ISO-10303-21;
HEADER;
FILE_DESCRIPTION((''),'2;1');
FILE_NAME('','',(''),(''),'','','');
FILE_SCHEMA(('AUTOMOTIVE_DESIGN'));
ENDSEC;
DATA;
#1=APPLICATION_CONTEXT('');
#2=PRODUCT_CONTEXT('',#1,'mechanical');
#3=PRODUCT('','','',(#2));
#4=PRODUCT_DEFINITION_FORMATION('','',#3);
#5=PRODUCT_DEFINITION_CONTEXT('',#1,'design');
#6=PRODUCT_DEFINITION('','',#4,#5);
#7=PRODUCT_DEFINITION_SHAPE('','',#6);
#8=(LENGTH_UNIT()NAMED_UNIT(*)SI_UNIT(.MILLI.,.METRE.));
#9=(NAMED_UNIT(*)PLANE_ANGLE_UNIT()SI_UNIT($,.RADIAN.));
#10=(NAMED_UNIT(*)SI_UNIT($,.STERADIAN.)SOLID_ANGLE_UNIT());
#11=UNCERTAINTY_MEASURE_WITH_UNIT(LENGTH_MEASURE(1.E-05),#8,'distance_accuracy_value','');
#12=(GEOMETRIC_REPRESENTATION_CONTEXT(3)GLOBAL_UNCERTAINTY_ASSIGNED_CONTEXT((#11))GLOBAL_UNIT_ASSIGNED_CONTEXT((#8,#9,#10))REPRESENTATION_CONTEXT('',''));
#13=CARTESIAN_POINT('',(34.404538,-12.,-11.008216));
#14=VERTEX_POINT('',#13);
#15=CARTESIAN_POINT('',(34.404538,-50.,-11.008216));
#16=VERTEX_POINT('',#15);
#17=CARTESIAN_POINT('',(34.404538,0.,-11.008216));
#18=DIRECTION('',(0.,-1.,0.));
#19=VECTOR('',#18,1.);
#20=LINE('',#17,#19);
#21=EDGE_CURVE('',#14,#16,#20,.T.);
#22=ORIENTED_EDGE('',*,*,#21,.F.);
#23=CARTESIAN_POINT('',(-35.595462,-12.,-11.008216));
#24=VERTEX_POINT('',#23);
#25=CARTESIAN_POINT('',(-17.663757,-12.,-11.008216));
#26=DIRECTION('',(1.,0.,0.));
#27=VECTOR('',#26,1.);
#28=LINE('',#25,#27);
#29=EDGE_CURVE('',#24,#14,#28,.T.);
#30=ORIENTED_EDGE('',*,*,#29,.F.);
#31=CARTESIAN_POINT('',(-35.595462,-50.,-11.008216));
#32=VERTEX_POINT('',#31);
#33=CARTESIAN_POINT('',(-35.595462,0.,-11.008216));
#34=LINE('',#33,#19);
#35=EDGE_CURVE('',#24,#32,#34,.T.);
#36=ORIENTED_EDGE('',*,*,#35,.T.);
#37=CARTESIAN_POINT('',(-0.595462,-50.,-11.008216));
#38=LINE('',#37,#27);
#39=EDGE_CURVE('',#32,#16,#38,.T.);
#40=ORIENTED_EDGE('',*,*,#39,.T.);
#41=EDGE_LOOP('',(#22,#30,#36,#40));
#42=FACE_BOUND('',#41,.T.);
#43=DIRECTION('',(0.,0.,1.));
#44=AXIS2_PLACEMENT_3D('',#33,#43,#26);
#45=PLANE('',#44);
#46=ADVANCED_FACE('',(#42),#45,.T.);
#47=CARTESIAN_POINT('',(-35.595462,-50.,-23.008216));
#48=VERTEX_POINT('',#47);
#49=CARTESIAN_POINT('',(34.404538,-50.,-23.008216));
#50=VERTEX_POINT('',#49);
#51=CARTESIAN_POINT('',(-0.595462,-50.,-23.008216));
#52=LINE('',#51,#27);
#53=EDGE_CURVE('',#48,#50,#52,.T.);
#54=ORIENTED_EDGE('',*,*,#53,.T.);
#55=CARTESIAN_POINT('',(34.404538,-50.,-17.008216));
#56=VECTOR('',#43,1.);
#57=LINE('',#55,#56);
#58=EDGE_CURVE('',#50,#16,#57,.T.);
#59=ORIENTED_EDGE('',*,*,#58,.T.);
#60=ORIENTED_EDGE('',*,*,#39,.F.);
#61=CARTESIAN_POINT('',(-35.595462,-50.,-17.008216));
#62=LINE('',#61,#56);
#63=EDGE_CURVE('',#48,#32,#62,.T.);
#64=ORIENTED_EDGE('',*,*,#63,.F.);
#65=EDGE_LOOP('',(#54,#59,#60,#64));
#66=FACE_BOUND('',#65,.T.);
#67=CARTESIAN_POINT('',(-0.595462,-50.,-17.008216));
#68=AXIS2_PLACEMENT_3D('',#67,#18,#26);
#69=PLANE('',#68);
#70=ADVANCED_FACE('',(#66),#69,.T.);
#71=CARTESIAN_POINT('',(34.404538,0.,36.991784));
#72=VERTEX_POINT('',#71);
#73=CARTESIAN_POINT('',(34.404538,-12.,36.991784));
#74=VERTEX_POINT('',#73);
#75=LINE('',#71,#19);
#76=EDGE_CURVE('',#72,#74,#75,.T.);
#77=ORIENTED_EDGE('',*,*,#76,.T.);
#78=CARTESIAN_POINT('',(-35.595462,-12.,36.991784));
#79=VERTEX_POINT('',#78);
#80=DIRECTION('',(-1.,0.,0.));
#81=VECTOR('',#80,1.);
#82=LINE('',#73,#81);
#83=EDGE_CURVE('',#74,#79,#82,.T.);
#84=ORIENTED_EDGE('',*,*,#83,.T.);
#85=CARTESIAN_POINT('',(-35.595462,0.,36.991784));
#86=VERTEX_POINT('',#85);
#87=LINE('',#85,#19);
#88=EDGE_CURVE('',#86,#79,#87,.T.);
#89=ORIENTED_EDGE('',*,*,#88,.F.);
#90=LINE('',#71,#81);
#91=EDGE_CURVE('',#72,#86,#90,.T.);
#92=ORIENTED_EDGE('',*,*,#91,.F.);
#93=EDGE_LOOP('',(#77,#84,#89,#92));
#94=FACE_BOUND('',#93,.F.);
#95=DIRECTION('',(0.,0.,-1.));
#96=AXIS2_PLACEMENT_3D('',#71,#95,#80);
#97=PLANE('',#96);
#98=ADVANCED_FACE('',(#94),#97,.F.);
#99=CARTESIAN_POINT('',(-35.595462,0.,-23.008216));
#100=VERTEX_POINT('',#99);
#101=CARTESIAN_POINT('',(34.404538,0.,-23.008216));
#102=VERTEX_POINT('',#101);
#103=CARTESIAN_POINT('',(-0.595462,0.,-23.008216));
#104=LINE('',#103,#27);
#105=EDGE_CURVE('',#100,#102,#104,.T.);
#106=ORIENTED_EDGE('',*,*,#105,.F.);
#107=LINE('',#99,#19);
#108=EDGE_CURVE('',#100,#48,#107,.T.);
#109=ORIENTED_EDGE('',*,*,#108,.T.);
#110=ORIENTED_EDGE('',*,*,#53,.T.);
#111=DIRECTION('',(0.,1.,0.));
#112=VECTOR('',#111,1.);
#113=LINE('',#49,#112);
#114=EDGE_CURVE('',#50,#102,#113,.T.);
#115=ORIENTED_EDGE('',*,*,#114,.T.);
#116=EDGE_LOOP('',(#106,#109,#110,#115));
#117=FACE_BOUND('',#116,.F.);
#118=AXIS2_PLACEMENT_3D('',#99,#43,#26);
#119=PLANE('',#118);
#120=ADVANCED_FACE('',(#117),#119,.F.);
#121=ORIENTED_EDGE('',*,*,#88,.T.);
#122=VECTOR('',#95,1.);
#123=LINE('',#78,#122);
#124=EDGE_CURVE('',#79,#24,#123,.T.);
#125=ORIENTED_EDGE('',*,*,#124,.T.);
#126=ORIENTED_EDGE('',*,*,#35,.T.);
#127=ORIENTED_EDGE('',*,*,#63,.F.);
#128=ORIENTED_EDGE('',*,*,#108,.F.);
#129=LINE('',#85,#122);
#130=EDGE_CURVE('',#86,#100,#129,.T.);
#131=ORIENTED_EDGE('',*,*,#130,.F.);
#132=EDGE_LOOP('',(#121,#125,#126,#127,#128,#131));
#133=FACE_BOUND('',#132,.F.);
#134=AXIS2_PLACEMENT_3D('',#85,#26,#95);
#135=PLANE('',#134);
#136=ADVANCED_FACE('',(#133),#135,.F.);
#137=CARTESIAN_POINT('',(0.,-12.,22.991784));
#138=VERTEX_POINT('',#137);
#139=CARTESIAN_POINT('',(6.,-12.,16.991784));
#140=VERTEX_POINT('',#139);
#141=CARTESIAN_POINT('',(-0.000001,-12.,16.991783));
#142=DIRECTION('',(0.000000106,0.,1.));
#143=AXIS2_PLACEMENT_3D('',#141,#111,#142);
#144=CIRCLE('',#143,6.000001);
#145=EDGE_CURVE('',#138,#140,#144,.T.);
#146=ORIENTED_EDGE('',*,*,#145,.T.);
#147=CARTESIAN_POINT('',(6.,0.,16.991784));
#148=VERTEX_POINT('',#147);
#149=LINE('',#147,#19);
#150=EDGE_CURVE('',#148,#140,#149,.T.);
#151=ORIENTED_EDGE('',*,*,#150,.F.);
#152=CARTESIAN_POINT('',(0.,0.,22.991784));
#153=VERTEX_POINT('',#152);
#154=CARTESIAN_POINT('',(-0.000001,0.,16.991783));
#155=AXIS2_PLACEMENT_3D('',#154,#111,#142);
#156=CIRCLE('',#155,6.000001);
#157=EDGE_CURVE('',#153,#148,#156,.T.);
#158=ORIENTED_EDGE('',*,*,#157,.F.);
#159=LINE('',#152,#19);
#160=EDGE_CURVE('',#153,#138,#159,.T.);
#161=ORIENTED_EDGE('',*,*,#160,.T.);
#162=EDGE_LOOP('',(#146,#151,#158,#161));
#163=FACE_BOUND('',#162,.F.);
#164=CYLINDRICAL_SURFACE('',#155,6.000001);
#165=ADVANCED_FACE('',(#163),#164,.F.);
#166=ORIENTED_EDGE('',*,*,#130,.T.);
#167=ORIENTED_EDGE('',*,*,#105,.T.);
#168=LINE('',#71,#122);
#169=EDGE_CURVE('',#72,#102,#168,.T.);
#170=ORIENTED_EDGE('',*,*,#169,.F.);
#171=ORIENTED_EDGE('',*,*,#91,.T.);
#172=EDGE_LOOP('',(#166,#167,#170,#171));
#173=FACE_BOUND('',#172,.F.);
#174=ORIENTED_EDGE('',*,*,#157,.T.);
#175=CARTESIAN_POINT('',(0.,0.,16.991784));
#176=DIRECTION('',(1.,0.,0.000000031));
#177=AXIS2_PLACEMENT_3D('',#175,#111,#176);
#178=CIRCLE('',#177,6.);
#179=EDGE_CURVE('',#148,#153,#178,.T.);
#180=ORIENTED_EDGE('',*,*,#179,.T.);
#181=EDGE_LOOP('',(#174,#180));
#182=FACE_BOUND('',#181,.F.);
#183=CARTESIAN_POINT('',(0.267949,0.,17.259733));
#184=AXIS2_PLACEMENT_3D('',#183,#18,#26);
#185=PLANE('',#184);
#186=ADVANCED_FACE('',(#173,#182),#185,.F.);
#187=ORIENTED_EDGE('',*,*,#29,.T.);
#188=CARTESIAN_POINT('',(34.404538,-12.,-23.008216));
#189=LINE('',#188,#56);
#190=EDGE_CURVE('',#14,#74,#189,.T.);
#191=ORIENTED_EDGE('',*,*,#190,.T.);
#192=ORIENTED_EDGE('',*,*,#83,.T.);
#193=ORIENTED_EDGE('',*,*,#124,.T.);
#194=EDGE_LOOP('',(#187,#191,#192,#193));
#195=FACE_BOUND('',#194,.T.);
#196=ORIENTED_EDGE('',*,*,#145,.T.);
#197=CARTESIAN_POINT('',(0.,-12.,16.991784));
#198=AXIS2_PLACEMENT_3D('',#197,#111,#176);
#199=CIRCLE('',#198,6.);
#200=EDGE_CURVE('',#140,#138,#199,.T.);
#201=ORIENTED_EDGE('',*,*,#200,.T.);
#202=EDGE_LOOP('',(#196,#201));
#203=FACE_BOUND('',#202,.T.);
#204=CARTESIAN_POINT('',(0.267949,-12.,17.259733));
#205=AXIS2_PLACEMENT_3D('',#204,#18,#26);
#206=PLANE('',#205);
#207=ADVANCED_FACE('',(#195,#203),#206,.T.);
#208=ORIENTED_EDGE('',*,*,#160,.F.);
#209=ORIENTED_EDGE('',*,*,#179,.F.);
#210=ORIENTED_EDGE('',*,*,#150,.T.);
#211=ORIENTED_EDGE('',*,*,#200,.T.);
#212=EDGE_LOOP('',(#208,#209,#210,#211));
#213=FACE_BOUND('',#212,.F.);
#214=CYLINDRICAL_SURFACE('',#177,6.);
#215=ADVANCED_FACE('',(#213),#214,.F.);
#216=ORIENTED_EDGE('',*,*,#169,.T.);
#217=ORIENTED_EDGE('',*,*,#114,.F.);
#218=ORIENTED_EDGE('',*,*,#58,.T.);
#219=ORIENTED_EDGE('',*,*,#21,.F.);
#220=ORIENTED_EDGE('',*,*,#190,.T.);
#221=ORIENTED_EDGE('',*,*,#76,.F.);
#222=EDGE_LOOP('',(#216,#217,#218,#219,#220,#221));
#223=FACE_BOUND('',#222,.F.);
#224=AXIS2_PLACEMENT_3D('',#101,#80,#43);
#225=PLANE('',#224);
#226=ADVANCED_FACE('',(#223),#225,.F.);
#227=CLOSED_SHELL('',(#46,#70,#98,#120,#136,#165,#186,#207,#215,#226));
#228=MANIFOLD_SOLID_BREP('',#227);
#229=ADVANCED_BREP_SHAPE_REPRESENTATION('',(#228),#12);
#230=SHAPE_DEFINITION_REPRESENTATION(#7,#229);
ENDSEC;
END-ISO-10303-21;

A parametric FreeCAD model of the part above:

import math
import FreeCAD as App
import Part
import Sketcher
from FreeCAD import Vector
Q = App.Units.Quantity


def add_polygon(sketch, points):
    """Adds a closed chain of lines whose ends are joined by coincident constraints."""
    first, n = sketch.GeometryCount, len(points)
    for a, b in zip(points, points[1:] + points[:1]):
        sketch.addGeometry(Part.LineSegment(App.Vector(*a, 0), App.Vector(*b, 0)), False)
    for i in range(n):
        sketch.addConstraint(Sketcher.Constraint("Coincident", first + i, 2, first + (i + 1) % n, 1))

doc = App.newDocument("Part")
params = doc.addObject("Spreadsheet::Sheet", "Params")
for row, (alias, value) in enumerate([
    ("sketch1_width", "70 mm"),
    ("sketch1_height", "12 mm"),
    ("pad1_length", "50 mm"),
    ("sketch2_radius", "6.000001 mm"),
    ("sketch2_width", "70 mm"),
    ("sketch2_height", "60 mm"),
    ("pad2_length", "12 mm"),
], start=1):
    params.set(f"A{row}", alias)
    params.set(f"B{row}", "=" + value)
    params.setAlias(f"B{row}", alias)

body = doc.addObject("PartDesign::Body", "Body")

sketch1 = doc.addObject("Sketcher::SketchObject", "Sketch")
body.addObject(sketch1)
sketch1.AttachmentSupport = (doc.XZ_Plane, [""])
sketch1.MapMode = "FlatFace"
add_polygon(sketch1, [(-35.595462, -11.008216), (-35.595462, -23.008216), (34.404538, -23.008216), (34.404538, -11.008216)])
sketch1.addConstraint([
    Sketcher.Constraint("Vertical", 0),
    Sketcher.Constraint("Horizontal", 1),
    Sketcher.Constraint("Vertical", 2),
    Sketcher.Constraint("Horizontal", 3),
    Sketcher.Constraint("DistanceX", 1, 1, 1, 2, Q("70 mm")),
    Sketcher.Constraint("DistanceY", 0, 2, 0, 1, Q("12 mm")),
    Sketcher.Constraint("DistanceX", 0, 2, -1, 1, Q("35.595462 mm")),
    Sketcher.Constraint("DistanceY", 0, 2, -1, 1, Q("23.008216 mm")),
])
sketch1.setExpression("Constraints[8]", "Params.sketch1_width")
sketch1.setExpression("Constraints[9]", "Params.sketch1_height")
pad1 = doc.addObject("PartDesign::Pad", "Pad")
body.addObject(pad1)
pad1.Profile = sketch1
pad1.setExpression("Length", "Params.pad1_length")

sketch2 = doc.addObject("Sketcher::SketchObject", "Sketch001")
body.addObject(sketch2)
sketch2.AttachmentSupport = (doc.XZ_Plane, [""])
sketch2.MapMode = "FlatFace"
add_polygon(sketch2, [(-35.595462, 36.991784), (-35.595462, -23.008216), (34.404538, -23.008216), (34.404538, 36.991784)])
sketch2.addGeometry(Part.ArcOfCircle(Part.Circle(Vector(-0.000001, 16.991783, 0), Vector(0, 0, 1), 6.000001), math.radians(0.000006), math.radians(89.999994)), False)
sketch2.addGeometry(Part.ArcOfCircle(Part.Circle(Vector(0, 16.991784, 0), Vector(0, 0, 1), 6), math.radians(89.999998), math.radians(360.000002)), False)
sketch2.addConstraint([
    Sketcher.Constraint("Tangent", 4, 1, 5, 2),
    Sketcher.Constraint("Coincident", 5, 1, 4, 2),
    Sketcher.Constraint("Vertical", 0),
    Sketcher.Constraint("Horizontal", 1),
    Sketcher.Constraint("Vertical", 2),
    Sketcher.Constraint("Horizontal", 3),
    Sketcher.Constraint("PointOnObject", 4, 3, -2),
    Sketcher.Constraint("PointOnObject", 5, 1, -2),
    Sketcher.Constraint("Horizontal", 5, 3, 4, 1),
    Sketcher.Constraint("Radius", 4, Q("6.000001 mm")),
    Sketcher.Constraint("DistanceX", 1, 1, 1, 2, Q("70 mm")),
    Sketcher.Constraint("DistanceY", 0, 2, 0, 1, Q("60 mm")),
    Sketcher.Constraint("DistanceY", 0, 2, 4, 3, Q("39.999999 mm")),
    Sketcher.Constraint("DistanceX", 0, 2, -1, 1, Q("35.595462 mm")),
    Sketcher.Constraint("DistanceY", -1, 1, 4, 3, Q("16.991783 mm")),
])
sketch2.setExpression("Constraints[13]", "Params.sketch2_radius")
sketch2.setExpression("Constraints[14]", "Params.sketch2_width")
sketch2.setExpression("Constraints[15]", "Params.sketch2_height")
pad2 = doc.addObject("PartDesign::Pad", "Pad001")
body.addObject(pad2)
pad2.Profile = sketch2
pad2.setExpression("Length", "Params.pad2_length")

doc.recompute()
